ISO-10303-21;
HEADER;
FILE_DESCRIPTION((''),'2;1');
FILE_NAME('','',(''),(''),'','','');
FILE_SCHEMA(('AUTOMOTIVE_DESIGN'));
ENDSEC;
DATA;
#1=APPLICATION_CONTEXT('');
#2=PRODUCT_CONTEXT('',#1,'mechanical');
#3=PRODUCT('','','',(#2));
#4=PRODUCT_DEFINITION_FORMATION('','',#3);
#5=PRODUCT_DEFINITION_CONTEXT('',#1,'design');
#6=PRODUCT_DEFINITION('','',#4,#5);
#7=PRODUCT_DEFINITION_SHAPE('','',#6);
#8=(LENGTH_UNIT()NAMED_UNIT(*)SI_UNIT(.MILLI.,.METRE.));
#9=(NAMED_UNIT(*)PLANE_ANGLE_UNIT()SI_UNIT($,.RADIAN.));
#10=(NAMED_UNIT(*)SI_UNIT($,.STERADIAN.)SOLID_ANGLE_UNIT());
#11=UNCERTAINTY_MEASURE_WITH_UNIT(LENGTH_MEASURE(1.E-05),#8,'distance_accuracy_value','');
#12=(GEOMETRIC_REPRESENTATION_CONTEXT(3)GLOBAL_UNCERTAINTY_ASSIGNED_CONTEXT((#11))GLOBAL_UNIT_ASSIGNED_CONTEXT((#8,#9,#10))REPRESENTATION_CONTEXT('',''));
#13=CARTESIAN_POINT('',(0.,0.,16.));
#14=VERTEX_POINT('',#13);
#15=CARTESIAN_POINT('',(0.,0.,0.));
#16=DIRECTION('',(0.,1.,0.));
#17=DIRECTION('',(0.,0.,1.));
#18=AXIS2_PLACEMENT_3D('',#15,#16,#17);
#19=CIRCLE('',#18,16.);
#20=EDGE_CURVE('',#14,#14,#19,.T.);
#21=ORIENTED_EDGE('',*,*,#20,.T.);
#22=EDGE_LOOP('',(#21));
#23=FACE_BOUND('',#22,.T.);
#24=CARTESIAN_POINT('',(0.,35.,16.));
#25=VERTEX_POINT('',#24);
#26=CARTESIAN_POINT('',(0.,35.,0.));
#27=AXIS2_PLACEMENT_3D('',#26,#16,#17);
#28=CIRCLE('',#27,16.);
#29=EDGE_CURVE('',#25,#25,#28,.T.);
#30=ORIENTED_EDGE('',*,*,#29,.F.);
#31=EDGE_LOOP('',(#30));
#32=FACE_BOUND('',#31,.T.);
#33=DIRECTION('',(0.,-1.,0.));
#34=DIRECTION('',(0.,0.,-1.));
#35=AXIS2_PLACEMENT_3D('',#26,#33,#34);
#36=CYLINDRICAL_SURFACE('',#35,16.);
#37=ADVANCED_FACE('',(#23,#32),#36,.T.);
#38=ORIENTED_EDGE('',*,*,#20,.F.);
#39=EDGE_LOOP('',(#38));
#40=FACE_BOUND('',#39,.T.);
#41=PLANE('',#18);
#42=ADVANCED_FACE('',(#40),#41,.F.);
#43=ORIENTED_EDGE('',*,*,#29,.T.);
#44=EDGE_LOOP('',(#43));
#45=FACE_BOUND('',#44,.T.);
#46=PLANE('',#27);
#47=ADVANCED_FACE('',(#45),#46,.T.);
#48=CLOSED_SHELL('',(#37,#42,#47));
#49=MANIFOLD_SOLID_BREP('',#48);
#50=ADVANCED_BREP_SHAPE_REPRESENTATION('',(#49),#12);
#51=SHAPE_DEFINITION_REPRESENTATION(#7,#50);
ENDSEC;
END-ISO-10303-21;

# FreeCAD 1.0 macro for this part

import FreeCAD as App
import Part
import Sketcher
Q = App.Units.Quantity

doc = App.newDocument("Part")
params = doc.addObject("Spreadsheet::Sheet", "Params")
for row, (alias, value) in enumerate([
    ("sketch1_diameter", "32 mm"),
    ("pad1_length", "35 mm"),
], start=1):
    params.set(f"A{row}", alias)
    params.set(f"B{row}", "=" + value)
    params.setAlias(f"B{row}", alias)

body = doc.addObject("PartDesign::Body", "Body")

# Sketch on XZ plane
sketch1 = body.newObject("Sketcher::SketchObject", "Sketch")
sketch1.AttachmentSupport = (doc.getObject("XZ_Plane"), [""])
sketch1.MapMode = "FlatFace"
sketch1.addGeometry(Part.Circle(App.Vector(0, 0, 0), App.Vector(0, 0, 1), 16), False)
sketch1.addConstraint(Sketcher.Constraint("Coincident", 0, 3, -1, 1))
sketch1.addConstraint(Sketcher.Constraint("Diameter", 0, Q("32 mm")))
sketch1.setExpression("Constraints[1]", "Params.sketch1_diameter")
pad1 = body.newObject("PartDesign::Pad", "Pad")
pad1.Profile = sketch1
pad1.setExpression("Length", "Params.pad1_length")
pad1.Reversed = True

doc.recompute()
